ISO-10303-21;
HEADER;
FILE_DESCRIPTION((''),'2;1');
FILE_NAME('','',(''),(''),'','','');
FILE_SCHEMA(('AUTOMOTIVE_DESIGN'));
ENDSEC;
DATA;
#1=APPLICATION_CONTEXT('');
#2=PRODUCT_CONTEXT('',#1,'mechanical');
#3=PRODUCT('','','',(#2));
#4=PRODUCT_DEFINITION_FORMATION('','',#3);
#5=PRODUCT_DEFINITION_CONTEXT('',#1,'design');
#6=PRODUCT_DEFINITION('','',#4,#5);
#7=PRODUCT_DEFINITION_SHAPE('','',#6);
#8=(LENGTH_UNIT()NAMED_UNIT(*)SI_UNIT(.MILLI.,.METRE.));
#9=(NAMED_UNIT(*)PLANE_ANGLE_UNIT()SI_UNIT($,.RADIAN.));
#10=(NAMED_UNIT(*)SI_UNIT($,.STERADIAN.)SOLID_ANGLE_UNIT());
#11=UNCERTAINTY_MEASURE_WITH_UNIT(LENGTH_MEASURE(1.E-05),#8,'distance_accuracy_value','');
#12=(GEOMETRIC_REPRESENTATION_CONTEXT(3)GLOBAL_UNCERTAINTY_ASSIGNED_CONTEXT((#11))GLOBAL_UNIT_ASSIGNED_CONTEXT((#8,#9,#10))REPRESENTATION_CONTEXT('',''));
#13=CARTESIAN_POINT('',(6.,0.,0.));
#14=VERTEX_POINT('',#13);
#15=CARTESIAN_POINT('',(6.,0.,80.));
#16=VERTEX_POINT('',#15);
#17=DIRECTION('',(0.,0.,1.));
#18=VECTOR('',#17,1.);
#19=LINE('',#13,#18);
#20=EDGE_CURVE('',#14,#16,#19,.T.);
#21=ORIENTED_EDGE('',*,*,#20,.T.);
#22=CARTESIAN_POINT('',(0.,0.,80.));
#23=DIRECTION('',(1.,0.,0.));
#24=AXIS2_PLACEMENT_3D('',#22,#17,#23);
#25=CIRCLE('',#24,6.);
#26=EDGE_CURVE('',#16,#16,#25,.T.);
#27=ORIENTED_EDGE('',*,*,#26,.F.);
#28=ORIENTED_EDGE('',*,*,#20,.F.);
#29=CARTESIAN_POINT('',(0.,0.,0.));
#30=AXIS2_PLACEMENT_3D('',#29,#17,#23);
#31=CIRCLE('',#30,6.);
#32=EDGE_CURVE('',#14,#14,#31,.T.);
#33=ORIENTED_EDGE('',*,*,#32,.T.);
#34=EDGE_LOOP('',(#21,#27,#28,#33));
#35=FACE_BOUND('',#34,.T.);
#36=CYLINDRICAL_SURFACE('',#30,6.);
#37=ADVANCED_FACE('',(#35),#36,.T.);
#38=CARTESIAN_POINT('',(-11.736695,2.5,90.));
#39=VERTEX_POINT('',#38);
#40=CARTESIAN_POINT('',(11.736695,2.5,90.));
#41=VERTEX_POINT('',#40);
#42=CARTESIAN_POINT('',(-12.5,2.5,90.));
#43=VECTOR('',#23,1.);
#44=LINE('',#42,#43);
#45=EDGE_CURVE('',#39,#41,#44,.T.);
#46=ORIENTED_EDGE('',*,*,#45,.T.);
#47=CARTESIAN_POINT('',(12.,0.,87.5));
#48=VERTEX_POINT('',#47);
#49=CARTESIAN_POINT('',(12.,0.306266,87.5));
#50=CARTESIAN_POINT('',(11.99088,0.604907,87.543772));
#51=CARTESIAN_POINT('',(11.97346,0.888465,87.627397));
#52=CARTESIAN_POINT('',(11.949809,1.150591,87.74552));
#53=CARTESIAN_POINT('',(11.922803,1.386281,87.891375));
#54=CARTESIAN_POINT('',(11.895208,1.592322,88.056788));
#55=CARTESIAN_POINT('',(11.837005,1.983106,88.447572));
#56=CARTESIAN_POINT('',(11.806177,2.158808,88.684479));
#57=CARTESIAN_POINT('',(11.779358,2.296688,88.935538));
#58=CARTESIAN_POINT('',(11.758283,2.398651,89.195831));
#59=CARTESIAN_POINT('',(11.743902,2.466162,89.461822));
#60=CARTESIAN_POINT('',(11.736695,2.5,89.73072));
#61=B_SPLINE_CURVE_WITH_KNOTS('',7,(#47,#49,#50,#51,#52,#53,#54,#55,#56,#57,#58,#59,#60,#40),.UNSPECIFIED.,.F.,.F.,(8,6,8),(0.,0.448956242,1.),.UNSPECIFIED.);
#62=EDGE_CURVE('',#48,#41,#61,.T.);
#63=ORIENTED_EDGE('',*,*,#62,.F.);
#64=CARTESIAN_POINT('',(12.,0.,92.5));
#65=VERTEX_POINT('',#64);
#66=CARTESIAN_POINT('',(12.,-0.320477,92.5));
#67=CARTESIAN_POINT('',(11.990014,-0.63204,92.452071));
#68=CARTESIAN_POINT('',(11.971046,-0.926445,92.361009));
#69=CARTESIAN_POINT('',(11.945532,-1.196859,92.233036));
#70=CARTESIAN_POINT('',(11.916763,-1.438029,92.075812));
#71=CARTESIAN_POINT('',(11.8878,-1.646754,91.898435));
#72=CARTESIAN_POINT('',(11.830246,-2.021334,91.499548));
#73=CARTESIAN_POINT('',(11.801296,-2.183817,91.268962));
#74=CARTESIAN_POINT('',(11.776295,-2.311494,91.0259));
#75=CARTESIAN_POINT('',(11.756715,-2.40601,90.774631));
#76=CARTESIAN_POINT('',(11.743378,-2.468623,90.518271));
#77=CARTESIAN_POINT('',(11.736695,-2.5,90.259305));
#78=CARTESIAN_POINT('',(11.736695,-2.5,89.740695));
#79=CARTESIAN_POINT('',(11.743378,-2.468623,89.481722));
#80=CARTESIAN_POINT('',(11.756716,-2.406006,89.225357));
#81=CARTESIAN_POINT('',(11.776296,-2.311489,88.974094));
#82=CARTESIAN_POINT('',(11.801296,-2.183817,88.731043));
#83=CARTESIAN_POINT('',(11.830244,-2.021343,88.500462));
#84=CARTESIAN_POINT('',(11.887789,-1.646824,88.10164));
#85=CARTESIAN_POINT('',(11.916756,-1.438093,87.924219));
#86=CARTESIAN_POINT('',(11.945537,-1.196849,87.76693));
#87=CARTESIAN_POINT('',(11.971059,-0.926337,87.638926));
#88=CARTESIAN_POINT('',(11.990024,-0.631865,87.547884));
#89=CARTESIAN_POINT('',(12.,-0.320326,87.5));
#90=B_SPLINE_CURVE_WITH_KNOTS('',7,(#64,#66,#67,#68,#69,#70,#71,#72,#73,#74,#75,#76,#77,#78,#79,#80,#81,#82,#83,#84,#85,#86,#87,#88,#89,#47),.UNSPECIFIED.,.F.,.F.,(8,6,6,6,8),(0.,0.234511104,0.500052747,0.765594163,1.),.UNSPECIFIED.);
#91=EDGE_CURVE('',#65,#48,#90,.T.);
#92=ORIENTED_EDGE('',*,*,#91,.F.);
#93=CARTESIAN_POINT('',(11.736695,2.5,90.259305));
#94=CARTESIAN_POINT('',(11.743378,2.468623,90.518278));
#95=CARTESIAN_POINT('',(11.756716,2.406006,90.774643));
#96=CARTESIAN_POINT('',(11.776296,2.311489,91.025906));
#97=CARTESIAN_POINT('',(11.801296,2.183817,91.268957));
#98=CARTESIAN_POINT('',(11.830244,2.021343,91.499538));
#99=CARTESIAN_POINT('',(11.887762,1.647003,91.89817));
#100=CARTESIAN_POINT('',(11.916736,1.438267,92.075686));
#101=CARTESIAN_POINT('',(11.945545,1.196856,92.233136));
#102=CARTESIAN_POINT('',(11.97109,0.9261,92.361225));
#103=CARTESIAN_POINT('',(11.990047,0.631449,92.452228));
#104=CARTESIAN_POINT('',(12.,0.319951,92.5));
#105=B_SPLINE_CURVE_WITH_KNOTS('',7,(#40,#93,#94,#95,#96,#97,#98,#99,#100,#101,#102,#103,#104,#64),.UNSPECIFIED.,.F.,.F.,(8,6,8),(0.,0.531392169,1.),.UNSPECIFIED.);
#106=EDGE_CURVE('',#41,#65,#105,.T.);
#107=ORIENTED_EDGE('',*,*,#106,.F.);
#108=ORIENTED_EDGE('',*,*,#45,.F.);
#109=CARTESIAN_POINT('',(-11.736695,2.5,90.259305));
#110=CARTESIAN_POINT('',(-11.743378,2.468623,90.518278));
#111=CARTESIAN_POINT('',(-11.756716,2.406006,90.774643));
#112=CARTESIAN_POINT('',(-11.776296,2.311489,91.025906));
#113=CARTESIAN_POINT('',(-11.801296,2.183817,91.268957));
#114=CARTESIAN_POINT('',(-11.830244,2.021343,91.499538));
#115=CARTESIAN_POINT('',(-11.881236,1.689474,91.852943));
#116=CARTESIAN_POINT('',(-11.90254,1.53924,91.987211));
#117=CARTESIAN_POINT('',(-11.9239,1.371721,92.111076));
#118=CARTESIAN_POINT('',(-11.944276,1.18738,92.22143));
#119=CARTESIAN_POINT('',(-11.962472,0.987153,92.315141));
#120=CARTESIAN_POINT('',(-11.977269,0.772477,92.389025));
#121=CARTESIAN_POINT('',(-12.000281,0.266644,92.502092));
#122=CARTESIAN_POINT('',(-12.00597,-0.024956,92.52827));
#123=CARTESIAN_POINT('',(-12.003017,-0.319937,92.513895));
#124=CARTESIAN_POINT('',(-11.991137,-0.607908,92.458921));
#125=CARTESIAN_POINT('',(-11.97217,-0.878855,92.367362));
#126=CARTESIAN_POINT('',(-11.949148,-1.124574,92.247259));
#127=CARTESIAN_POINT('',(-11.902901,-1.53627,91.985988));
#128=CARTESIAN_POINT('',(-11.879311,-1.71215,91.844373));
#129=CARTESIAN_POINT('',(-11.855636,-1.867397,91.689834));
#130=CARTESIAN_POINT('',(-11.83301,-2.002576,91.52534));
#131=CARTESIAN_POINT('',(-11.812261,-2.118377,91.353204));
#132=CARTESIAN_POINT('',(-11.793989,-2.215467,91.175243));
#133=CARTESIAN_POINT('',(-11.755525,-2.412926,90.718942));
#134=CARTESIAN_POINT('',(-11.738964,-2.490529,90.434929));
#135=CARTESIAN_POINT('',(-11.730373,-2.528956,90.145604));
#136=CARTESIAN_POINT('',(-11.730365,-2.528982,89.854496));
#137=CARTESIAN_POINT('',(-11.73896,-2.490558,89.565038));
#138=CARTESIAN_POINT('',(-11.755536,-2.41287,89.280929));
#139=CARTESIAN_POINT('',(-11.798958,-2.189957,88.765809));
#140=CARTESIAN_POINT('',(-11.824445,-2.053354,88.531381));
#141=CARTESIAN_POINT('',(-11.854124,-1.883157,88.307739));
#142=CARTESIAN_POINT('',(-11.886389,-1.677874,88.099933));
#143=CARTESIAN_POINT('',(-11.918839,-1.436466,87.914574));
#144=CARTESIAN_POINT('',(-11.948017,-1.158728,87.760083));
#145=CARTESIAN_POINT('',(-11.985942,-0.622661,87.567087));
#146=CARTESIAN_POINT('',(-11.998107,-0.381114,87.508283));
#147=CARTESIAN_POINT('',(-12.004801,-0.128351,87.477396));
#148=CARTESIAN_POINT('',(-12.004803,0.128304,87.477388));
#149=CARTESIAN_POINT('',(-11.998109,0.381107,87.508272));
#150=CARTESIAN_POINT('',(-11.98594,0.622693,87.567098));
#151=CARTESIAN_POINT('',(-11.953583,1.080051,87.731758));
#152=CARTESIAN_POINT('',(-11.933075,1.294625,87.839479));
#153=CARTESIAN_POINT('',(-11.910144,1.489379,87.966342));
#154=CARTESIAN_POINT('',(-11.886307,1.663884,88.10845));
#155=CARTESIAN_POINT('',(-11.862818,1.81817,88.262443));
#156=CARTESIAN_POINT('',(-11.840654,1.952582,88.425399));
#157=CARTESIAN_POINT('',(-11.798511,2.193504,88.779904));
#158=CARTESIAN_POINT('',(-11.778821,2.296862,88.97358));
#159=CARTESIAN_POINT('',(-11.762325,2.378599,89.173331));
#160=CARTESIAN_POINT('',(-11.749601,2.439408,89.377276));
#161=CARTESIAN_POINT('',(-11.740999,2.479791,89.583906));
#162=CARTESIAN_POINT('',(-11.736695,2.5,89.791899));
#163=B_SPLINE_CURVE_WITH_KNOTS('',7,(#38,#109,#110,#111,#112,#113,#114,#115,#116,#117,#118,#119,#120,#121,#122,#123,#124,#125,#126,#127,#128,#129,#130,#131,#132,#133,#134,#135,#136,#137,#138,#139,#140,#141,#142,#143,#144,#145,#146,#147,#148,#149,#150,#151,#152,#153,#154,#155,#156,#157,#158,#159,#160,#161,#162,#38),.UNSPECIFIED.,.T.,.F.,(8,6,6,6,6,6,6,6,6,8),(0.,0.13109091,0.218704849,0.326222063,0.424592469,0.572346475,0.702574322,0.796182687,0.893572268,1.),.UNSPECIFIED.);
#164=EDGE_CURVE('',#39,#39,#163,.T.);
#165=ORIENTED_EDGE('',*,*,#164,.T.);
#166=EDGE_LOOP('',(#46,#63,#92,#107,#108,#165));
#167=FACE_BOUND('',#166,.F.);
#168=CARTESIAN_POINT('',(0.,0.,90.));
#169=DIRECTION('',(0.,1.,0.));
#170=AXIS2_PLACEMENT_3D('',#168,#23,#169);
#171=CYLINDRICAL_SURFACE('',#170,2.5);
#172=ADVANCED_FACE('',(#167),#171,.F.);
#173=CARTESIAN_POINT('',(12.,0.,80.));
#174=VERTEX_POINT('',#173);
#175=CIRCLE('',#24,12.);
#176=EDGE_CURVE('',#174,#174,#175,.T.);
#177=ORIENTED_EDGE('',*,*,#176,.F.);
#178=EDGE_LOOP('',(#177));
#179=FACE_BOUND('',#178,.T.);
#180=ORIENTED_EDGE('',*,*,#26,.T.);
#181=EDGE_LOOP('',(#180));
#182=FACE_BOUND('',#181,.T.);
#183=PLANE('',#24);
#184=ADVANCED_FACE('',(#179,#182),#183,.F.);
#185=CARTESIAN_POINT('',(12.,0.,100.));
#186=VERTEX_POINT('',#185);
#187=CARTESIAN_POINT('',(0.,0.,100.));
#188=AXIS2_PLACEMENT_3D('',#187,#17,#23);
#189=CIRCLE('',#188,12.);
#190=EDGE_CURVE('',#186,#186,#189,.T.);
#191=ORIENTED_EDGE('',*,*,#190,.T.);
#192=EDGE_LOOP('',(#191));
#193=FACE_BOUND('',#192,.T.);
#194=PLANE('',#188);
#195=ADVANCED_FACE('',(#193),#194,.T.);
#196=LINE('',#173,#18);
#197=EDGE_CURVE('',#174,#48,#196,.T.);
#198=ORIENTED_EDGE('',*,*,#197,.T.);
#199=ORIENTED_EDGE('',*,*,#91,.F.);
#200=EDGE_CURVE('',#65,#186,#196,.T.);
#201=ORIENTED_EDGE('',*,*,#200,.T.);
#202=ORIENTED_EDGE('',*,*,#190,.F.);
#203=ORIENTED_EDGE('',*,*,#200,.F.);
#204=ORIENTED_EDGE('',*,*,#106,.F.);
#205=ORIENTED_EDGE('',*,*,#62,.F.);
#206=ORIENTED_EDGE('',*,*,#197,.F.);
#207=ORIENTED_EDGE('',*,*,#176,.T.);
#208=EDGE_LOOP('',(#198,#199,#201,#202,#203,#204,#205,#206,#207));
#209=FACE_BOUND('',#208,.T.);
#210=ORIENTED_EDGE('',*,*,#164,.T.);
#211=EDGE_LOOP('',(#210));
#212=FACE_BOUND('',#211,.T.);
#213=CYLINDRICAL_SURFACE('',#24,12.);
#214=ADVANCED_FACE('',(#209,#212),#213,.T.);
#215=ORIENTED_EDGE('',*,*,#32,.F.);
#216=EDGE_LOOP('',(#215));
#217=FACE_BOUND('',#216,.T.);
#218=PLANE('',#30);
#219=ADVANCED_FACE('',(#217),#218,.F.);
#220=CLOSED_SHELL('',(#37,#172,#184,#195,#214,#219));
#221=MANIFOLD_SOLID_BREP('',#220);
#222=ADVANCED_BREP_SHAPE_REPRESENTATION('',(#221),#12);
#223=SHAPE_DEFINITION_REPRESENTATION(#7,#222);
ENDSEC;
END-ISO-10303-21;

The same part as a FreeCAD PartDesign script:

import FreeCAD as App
import Part
import Sketcher
from FreeCAD import Vector


def add_polygon(sketch, points):
    """Adds a closed chain of lines whose ends are joined by coincident constraints."""
    first, n = sketch.GeometryCount, len(points)
    for a, b in zip(points, points[1:] + points[:1]):
        sketch.addGeometry(Part.LineSegment(App.Vector(*a, 0), App.Vector(*b, 0)), False)
    for i in range(n):
        sketch.addConstraint(Sketcher.Constraint("Coincident", first + i, 2, first + (i + 1) % n, 1))

doc = App.newDocument("Part")
params = doc.addObject("Spreadsheet::Sheet", "Params")
for row, (alias, value) in enumerate([
    ("sketch1_width", "6 mm"),
    ("sketch1_height", "100 mm"),
    ("sketch1_height2", "80 mm"),
    ("revolution_angle", "360 deg"),
    ("sketch2_diameter", "5 mm"),
    ("pocket1_length", "25 mm"),
], start=1):
    params.set(f"A{row}", alias)
    params.set(f"B{row}", "=" + value)
    params.setAlias(f"B{row}", alias)

body = doc.addObject("PartDesign::Body", "Body")

# Sketch on XZ plane
sketch1 = doc.addObject("Sketcher::SketchObject", "Sketch")
body.addObject(sketch1)
sketch1.AttachmentSupport = (doc.XZ_Plane, [""])
sketch1.MapMode = "FlatFace"
add_polygon(sketch1, [(0, 100), (0, 0), (6, 0), (6, 80), (12, 80), (12, 100)])  # lines 0-5
sketch1.addConstraint(Sketcher.Constraint("Vertical", 0))
sketch1.addConstraint(Sketcher.Constraint("Horizontal", 1))
sketch1.addConstraint(Sketcher.Constraint("Vertical", 2))
sketch1.addConstraint(Sketcher.Constraint("Horizontal", 3))
sketch1.addConstraint(Sketcher.Constraint("Vertical", 4))
sketch1.addConstraint(Sketcher.Constraint("Horizontal", 5))
sketch1.addConstraint(Sketcher.Constraint("Coincident", 0, 2, -1, 1))
sketch1.addConstraint(Sketcher.Constraint("Equal", 1, 3))
sketch1.addConstraint(Sketcher.Constraint("DistanceX", 1, 1, 1, 2, 6.0))
sketch1.addConstraint(Sketcher.Constraint("DistanceY", 0, 2, 0, 1, 100.0))
sketch1.addConstraint(Sketcher.Constraint("DistanceY", 2, 1, 2, 2, 80.0))
sketch1.setExpression("Constraints[14]", "Params.sketch1_width")
sketch1.setExpression("Constraints[15]", "Params.sketch1_height")
sketch1.setExpression("Constraints[16]", "Params.sketch1_height2")
revolution = doc.addObject("PartDesign::Revolution", "Revolution")
body.addObject(revolution)
revolution.Profile = sketch1
revolution.ReferenceAxis = (sketch1, ["V_Axis"])
revolution.setExpression("Angle", "Params.revolution_angle")

# Sketch on YZ plane
sketch2 = doc.addObject("Sketcher::SketchObject", "Sketch001")
body.addObject(sketch2)
sketch2.AttachmentSupport = (doc.YZ_Plane, [""])
sketch2.MapMode = "FlatFace"
sketch2.addGeometry(Part.Circle(Vector(0, 90, 0), Vector(0, 0, 1), 2.5), False)
sketch2.addConstraint(Sketcher.Constraint("PointOnObject", 0, 3, -2))
sketch2.addConstraint(Sketcher.Constraint("Diameter", 0, 5.0))
sketch2.addConstraint(Sketcher.Constraint("DistanceY", -1, 1, 0, 3, 90.0))
sketch2.setExpression("Constraints[1]", "Params.sketch2_diameter")
pocket1 = doc.addObject("PartDesign::Pocket", "Pocket")
body.addObject(pocket1)
pocket1.Profile = sketch2
pocket1.setExpression("Length", "Params.pocket1_length")
pocket1.Midplane = True

doc.recompute()
